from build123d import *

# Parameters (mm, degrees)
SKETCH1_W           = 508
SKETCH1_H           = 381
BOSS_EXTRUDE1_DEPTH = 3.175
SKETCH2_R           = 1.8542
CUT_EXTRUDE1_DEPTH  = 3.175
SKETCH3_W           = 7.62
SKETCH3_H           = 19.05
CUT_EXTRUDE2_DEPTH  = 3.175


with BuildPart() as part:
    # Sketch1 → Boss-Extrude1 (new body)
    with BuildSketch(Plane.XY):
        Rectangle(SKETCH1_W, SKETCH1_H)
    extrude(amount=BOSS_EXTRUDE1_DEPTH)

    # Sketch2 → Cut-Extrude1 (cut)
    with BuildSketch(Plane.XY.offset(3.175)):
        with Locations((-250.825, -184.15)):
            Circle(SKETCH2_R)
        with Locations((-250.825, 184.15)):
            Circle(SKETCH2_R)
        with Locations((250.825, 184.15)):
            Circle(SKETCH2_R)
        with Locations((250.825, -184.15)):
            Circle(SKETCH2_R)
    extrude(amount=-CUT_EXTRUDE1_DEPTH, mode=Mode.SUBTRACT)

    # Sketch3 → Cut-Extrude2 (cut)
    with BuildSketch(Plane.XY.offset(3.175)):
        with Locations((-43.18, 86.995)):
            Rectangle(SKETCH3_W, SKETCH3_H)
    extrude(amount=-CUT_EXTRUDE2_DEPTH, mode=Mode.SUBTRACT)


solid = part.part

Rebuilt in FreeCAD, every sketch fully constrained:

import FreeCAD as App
import Part
import Sketcher
Q = App.Units.Quantity


def add_polygon(sketch, points):
    """Adds a closed chain of lines whose ends are joined by coincident constraints."""
    first, n = sketch.GeometryCount, len(points)
    for a, b in zip(points, points[1:] + points[:1]):
        sketch.addGeometry(Part.LineSegment(App.Vector(*a, 0), App.Vector(*b, 0)), False)
    for i in range(n):
        sketch.addConstraint(Sketcher.Constraint("Coincident", first + i, 2, first + (i + 1) % n, 1))

doc = App.newDocument("Part")
body = doc.addObject("PartDesign::Body", "Body")

# Sketch on XY plane
sketch1 = body.newObject("Sketcher::SketchObject", "Sketch")
sketch1.AttachmentSupport = (doc.getObject("XY_Plane"), [""])
sketch1.MapMode = "FlatFace"
add_polygon(sketch1, [(-254, 190), (-254, -190), (254, -190), (254, 190)])  # lines 0-3
sketch1.addConstraint(Sketcher.Constraint("Vertical", 0))
sketch1.addConstraint(Sketcher.Constraint("Horizontal", 1))
sketch1.addConstraint(Sketcher.Constraint("Vertical", 2))
sketch1.addConstraint(Sketcher.Constraint("Horizontal", 3))
sketch1.addConstraint(Sketcher.Constraint("Symmetric", 0, 2, 2, 2, -1, 1))
sketch1.addConstraint(Sketcher.Constraint("DistanceX", 1, 1, 1, 2, Q("20 in")))
sketch1.addConstraint(Sketcher.Constraint("DistanceY", 0, 2, 0, 1, Q("15 in")))
pad1 = body.newObject("PartDesign::Pad", "Pad")
pad1.Profile = sketch1
pad1.Length = Q("0.125 in")

# Sketch on XY plane
sketch2 = body.newObject("Sketcher::SketchObject", "Sketch001")
sketch2.AttachmentSupport = (doc.getObject("XY_Plane"), [""])
sketch2.MapMode = "FlatFace"
sketch2.AttachmentOffset = App.Placement(App.Vector(0, 0, 0.125 * 25.4), App.Rotation())
sketch2.addGeometry(Part.Circle(App.Vector(-250.8, -184.2, 0), App.Vector(0, 0, 1), 1.9), False)
sketch2.addGeometry(Part.Circle(App.Vector(-250.8, 184.2, 0), App.Vector(0, 0, 1), 1.9), False)
sketch2.addGeometry(Part.Circle(App.Vector(250.8, 184.2, 0), App.Vector(0, 0, 1), 1.9), False)
sketch2.addGeometry(Part.Circle(App.Vector(250.8, -184.2, 0), App.Vector(0, 0, 1), 1.9), False)
sketch2.addConstraint(Sketcher.Constraint("Equal", 0, 1))
sketch2.addConstraint(Sketcher.Constraint("Equal", 1, 2))
sketch2.addConstraint(Sketcher.Constraint("Equal", 2, 3))
sketch2.addConstraint(Sketcher.Constraint("Symmetric", 0, 3, 2, 3, -1, 1))
sketch2.addConstraint(Sketcher.Constraint("Symmetric", 1, 3, 3, 3, -1, 1))
sketch2.addConstraint(Sketcher.Constraint("Symmetric", 1, 3, 2, 3, -2))
sketch2.addConstraint(Sketcher.Constraint("Diameter", 0, Q("0.146 in")))
sketch2.addConstraint(Sketcher.Constraint("DistanceY", 0, 3, 1, 3, Q("14.5 in")))
sketch2.addConstraint(Sketcher.Constraint("DistanceX", 1, 3, 2, 3, Q("19.75 in")))
pocket1 = body.newObject("PartDesign::Pocket", "Pocket")
pocket1.Profile = sketch2
pocket1.Length = Q("0.125 in")

# Sketch on XY plane
sketch3 = body.newObject("Sketcher::SketchObject", "Sketch002")
sketch3.AttachmentSupport = (doc.getObject("XY_Plane"), [""])
sketch3.MapMode = "FlatFace"
sketch3.AttachmentOffset = App.Placement(App.Vector(0, 0, 0.125 * 25.4), App.Rotation())
add_polygon(sketch3, [(-47, 97), (-47, 77), (-39, 77), (-39, 97)])  # lines 0-3
sketch3.addConstraint(Sketcher.Constraint("Vertical", 0))
sketch3.addConstraint(Sketcher.Constraint("Horizontal", 1))
sketch3.addConstraint(Sketcher.Constraint("Vertical", 2))
sketch3.addConstraint(Sketcher.Constraint("Horizontal", 3))
sketch3.addConstraint(Sketcher.Constraint("DistanceX", 1, 1, 1, 2, Q("0.3 in")))
sketch3.addConstraint(Sketcher.Constraint("DistanceY", 0, 2, 0, 1, Q("0.75 in")))
sketch3.addConstraint(Sketcher.Constraint("DistanceY", -1, 1, 2, 2, Q("3.8 in")))
sketch3.addConstraint(Sketcher.Constraint("DistanceX", 0, 2, -1, 1, Q("1.85 in")))
pocket2 = body.newObject("PartDesign::Pocket", "Pocket001")
pocket2.Profile = sketch3
pocket2.Length = Q("0.125 in")

doc.recompute()
